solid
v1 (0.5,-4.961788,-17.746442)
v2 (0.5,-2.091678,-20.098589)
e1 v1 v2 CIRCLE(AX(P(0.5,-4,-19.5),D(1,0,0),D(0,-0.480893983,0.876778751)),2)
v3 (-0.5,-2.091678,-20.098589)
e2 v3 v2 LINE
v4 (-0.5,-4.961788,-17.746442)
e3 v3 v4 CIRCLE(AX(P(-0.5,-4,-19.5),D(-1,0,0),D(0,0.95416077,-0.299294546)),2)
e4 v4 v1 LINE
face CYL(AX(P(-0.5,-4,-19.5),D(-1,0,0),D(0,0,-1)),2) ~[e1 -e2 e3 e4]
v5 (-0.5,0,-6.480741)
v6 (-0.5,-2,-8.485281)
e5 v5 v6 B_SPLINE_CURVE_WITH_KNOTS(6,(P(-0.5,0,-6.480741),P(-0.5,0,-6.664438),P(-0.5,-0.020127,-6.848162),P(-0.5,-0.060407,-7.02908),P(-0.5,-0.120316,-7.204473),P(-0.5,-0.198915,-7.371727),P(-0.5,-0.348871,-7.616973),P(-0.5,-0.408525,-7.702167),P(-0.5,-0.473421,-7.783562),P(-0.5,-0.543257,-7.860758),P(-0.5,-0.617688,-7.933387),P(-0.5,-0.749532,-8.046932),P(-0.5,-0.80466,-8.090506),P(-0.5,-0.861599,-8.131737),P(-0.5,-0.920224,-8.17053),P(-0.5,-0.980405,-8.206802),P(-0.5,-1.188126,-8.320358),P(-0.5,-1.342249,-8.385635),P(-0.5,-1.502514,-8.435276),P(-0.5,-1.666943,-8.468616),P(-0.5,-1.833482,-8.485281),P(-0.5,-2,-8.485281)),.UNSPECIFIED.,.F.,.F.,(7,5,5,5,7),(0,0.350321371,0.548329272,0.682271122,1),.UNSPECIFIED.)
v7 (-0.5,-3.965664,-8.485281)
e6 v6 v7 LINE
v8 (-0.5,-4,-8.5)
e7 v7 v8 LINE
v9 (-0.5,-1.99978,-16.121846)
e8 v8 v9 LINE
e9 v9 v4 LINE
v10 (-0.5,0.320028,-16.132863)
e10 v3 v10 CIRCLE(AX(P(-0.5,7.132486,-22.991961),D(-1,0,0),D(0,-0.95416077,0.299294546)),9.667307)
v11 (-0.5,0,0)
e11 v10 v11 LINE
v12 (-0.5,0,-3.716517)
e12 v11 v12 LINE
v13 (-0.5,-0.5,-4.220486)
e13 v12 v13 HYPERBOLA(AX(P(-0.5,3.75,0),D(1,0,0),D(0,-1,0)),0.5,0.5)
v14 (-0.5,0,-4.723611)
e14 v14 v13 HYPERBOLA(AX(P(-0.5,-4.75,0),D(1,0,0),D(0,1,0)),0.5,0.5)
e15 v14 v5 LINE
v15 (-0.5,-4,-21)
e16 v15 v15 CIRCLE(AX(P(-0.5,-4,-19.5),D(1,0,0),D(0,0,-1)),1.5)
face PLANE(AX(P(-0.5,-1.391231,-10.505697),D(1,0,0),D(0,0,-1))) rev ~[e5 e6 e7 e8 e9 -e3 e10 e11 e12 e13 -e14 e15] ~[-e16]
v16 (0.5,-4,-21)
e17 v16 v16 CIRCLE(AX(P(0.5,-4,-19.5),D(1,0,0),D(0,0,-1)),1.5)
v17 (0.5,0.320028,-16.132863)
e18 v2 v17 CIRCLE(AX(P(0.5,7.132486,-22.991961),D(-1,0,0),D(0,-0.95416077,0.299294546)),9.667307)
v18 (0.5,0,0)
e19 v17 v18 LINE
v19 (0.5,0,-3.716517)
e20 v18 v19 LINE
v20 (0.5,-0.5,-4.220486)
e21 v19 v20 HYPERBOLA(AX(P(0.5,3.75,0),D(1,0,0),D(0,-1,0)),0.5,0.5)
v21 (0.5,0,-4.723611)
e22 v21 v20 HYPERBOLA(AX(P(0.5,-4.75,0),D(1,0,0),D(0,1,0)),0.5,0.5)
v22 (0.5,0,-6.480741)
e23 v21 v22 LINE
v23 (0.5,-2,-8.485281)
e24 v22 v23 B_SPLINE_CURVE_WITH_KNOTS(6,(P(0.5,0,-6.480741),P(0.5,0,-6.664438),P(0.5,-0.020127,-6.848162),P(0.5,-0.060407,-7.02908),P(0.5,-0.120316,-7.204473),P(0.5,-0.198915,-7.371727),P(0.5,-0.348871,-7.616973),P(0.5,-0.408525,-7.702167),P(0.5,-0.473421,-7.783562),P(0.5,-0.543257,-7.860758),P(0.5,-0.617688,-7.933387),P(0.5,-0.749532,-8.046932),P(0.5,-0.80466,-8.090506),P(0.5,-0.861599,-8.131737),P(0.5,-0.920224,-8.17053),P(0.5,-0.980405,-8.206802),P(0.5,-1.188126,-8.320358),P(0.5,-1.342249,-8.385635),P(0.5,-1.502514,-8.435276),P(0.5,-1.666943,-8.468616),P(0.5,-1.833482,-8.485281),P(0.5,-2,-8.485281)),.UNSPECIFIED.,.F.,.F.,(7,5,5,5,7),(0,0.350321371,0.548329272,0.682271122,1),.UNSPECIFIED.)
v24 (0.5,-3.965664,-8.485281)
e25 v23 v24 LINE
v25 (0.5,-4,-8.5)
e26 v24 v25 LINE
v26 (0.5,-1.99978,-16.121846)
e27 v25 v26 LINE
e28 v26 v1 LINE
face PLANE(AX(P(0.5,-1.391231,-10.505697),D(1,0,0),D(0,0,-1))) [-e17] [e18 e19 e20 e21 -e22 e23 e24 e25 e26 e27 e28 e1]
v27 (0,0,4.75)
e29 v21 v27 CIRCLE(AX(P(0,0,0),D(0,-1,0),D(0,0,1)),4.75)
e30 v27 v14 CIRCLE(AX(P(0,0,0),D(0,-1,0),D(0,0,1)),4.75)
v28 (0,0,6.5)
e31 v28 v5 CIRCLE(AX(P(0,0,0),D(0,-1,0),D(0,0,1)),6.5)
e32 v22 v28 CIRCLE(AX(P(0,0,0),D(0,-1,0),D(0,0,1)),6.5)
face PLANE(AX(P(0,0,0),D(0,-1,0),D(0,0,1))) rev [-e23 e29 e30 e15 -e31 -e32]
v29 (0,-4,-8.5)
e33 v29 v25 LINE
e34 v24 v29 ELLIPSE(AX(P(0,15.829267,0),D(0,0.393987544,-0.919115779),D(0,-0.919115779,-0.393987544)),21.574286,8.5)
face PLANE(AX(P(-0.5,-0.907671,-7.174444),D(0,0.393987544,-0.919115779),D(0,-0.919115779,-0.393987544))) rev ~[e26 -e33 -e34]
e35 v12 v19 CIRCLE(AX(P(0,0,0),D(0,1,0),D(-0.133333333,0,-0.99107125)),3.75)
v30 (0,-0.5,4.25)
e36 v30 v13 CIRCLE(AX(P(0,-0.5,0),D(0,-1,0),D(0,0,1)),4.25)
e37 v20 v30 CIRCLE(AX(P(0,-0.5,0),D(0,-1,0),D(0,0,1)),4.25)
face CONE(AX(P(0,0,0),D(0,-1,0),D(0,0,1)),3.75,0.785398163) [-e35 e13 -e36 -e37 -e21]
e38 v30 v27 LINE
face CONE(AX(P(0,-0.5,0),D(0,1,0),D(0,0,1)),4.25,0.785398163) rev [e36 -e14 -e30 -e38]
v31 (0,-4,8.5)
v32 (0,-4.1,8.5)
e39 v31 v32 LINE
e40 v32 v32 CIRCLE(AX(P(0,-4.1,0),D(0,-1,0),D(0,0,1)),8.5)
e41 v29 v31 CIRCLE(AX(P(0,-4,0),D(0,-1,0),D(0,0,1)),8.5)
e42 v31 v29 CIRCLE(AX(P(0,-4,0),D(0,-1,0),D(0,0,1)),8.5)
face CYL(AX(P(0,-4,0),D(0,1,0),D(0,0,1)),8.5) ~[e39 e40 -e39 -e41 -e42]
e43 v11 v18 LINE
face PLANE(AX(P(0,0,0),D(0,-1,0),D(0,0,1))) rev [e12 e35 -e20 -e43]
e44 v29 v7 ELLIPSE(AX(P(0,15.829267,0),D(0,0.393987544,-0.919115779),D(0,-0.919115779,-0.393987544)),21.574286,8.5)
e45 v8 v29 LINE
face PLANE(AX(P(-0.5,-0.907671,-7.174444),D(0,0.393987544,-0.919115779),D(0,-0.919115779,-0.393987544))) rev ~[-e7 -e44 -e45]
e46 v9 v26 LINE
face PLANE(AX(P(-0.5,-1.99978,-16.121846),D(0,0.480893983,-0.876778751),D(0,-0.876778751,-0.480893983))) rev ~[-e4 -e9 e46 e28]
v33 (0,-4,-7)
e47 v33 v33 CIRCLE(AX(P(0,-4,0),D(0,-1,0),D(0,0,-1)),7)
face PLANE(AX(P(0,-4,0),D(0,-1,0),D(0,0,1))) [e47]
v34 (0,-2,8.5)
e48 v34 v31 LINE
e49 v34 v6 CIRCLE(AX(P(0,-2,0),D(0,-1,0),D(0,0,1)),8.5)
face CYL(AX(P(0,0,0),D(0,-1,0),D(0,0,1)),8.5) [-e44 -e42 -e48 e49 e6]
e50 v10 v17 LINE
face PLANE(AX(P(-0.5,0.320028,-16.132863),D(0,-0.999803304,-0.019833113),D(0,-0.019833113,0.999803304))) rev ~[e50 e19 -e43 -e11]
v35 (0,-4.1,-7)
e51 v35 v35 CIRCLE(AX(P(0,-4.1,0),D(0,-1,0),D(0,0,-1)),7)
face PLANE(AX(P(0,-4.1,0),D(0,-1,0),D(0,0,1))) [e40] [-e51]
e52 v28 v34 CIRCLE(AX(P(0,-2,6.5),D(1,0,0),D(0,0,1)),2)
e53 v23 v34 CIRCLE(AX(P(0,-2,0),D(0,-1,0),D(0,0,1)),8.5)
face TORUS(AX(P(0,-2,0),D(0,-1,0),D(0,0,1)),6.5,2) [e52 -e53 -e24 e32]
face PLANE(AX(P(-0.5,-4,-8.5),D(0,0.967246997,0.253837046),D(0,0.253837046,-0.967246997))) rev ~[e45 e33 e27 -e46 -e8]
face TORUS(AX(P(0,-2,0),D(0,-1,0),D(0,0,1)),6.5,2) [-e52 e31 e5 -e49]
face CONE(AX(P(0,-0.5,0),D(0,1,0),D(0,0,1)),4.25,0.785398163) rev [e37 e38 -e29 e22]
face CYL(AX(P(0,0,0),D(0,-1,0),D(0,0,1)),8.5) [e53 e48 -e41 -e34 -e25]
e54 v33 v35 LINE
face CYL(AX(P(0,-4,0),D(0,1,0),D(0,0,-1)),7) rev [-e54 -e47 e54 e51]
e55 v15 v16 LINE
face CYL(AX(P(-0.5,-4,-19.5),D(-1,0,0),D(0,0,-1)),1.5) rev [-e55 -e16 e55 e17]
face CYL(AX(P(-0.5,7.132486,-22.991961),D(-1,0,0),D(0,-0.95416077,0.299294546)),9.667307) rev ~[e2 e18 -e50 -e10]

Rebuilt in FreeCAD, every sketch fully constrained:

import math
import FreeCAD as App
import Part
import Sketcher

V = App.Vector
Q = App.Units.Quantity


def edges_at(feature, points):
    """Names of the edges that pass closest to the given points."""
    edges = feature.Shape.Edges
    near = lambda p: min(range(len(edges)), key=lambda i: edges[i].distToShape(Part.Vertex(*p))[0])
    return sorted({f"Edge{near(p) + 1}" for p in points})

doc = App.newDocument("Part")
body = doc.addObject("PartDesign::Body", "Body")

# Sketch on YZ plane
sketch1 = doc.addObject("Sketcher::SketchObject", "Sketch")
body.addObject(sketch1)
sketch1.AttachmentSupport = (doc.YZ_Plane, [""])
sketch1.MapMode = "FlatFace"
sketch1.addGeometry([
    Part.LineSegment(V(0, 0, 0), V(0, 3.75, 0)),  # 0
    Part.LineSegment(V(0, 3.75, 0), V(-0.5, 4.25, 0)),  # 1
    Part.LineSegment(V(-0.5, 4.25, 0), V(0, 4.75, 0)),  # 2
    Part.LineSegment(V(0, 4.75, 0), V(0, 8.5, 0)),  # 3
    Part.LineSegment(V(0, 8.5, 0), V(-4, 8.5, 0)),  # 4
    Part.LineSegment(V(-4, 8.5, 0), V(-4, 0, 0)),  # 5
    Part.LineSegment(V(-4, 0, 0), V(0, 0, 0)),  # 6
], False)
sketch1.addConstraint([
    Sketcher.Constraint("Coincident", 0, 2, 1, 1),
    Sketcher.Constraint("Coincident", 1, 2, 2, 1),
    Sketcher.Constraint("Coincident", 2, 2, 3, 1),
    Sketcher.Constraint("Coincident", 3, 2, 4, 1),
    Sketcher.Constraint("Coincident", 4, 2, 5, 1),
    Sketcher.Constraint("Coincident", 5, 2, 6, 1),
    Sketcher.Constraint("Coincident", 6, 2, 0, 1),
    Sketcher.Constraint("Vertical", 0),
    Sketcher.Constraint("Vertical", 3),
    Sketcher.Constraint("Horizontal", 4),
    Sketcher.Constraint("Vertical", 5),
    Sketcher.Constraint("Horizontal", 6),
    Sketcher.Constraint("Coincident", 6, 2, -1, 1),
    Sketcher.Constraint("PointOnObject", 2, 2, -2),
    Sketcher.Constraint("Perpendicular", 1, 2),
    Sketcher.Constraint("Equal", 0, 3),
    Sketcher.Constraint("Equal", 1, 2),
    Sketcher.Constraint("DistanceX", 4, 2, 4, 1, Q("4 mm")),
    Sketcher.Constraint("DistanceY", 5, 2, 5, 1, Q("8.5 mm")),
    Sketcher.Constraint("DistanceY", 0, 2, 2, 2, Q("1 mm")),
])
revolution = doc.addObject("PartDesign::Revolution", "Revolution")
body.addObject(revolution)
revolution.Profile = sketch1
revolution.ReferenceAxis = (sketch1, ["H_Axis"])
revolution.Angle = 360
doc.recompute()

fillet = doc.addObject("PartDesign::Fillet", "Fillet")
body.addObject(fillet)
fillet.Base = (revolution, edges_at(revolution, [(0, 0, -8.5)]))
fillet.Radius = 2
body2 = doc.addObject("PartDesign::Body", "Body001")

# Sketch on XZ plane
sketch2 = doc.addObject("Sketcher::SketchObject", "Sketch001")
body2.addObject(sketch2)
sketch2.AttachmentSupport = (doc.getObject("XZ_Plane001"), [""])
sketch2.MapMode = "FlatFace"
sketch2.AttachmentOffset = App.Placement(V(0, 0, 4), App.Rotation())
sketch2.addGeometry([
    Part.Circle(V(0, 0, 0), V(0, 0, 1), 8.5),
    Part.Circle(V(0, 0, 0), V(0, 0, 1), 7),
], False)
sketch2.addConstraint([
    Sketcher.Constraint("Coincident", 0, 3, -1, 1),
    Sketcher.Constraint("Coincident", 1, 3, -1, 1),
    Sketcher.Constraint("Diameter", 0, Q("17 mm")),
    Sketcher.Constraint("Diameter", 1, Q("14 mm")),
])
pad1 = doc.addObject("PartDesign::Pad", "Pad")
body2.addObject(pad1)
pad1.Profile = sketch2
pad1.Length = 0.1
doc.recompute()

boolean = doc.addObject("PartDesign::Boolean", "Boolean")
body.addObject(boolean)
boolean.Type = "Fuse"
boolean.addObjects([body2])

# Sketch on YZ plane
sketch3 = doc.addObject("Sketcher::SketchObject", "Sketch002")
body.addObject(sketch3)
sketch3.AttachmentSupport = (doc.YZ_Plane, [""])
sketch3.MapMode = "FlatFace"
sketch3.addGeometry([
    Part.LineSegment(V(0.320028, -16.132863, 0), V(0, 0, 0)),  # 0
    Part.LineSegment(V(0, 0, 0), V(-0.907671, 0, 0)),  # 1
    Part.LineSegment(V(-0.907671, 0, 0), V(-0.907671, -7.174444, 0)),  # 2
    Part.LineSegment(V(-0.907671, -7.174444, 0), V(-4, -8.5, 0)),  # 3
    Part.LineSegment(V(-4, -8.5, 0), V(-1.99978, -16.121846, 0)),  # 4
    Part.LineSegment(V(-1.99978, -16.121846, 0), V(-4.961788, -17.746442, 0)),  # 5
    Part.ArcOfCircle(Part.Circle(V(-4, -19.5, 0), V(0, 0, 1), 2), math.radians(118.743806), math.radians(342.584763)),  # 6
    Part.ArcOfCircle(Part.Circle(V(7.132486, -22.991961, 0), V(0, 0, 1), 9.667307), math.radians(134.80454), math.radians(162.584763)),  # 7
    Part.Circle(V(-4, -19.5, 0), V(0, 0, 1), 1.5),  # 8
], False)
sketch3.addConstraint([
    Sketcher.Constraint("Coincident", 0, 2, 1, 1),
    Sketcher.Constraint("Coincident", 1, 2, 2, 1),
    Sketcher.Constraint("Coincident", 2, 2, 3, 1),
    Sketcher.Constraint("Coincident", 3, 2, 4, 1),
    Sketcher.Constraint("Coincident", 4, 2, 5, 1),
    Sketcher.Constraint("Coincident", 5, 2, 6, 1),
    Sketcher.Constraint("Coincident", 6, 2, 7, 2),
    Sketcher.Constraint("Coincident", 7, 1, 0, 1),
    Sketcher.Constraint("Horizontal", 1),
    Sketcher.Constraint("Vertical", 2),
    Sketcher.Constraint("Coincident", 0, 2, -1, 1),
    Sketcher.Constraint("Coincident", 8, 3, 6, 3),
    Sketcher.Constraint("Diameter", 8, Q("3 mm")),
    Sketcher.Constraint("Radius", 6, Q("2 mm")),
    Sketcher.Constraint("DistanceX", 6, 3, -1, 1, Q("4 mm")),
    Sketcher.Constraint("DistanceX", 3, 2, -1, 1, Q("4 mm")),
    Sketcher.Constraint("DistanceY", 6, 3, 3, 2, Q("11 mm")),
    Sketcher.Constraint("DistanceY", 6, 3, -1, 1, Q("19.5 mm")),
    Sketcher.Constraint("Radius", 7, Q("9.667307 mm")),
    Sketcher.Constraint("DistanceY", 5, 2, 2, 2, Q("10.571998 mm")),
    Sketcher.Constraint("DistanceX", 1, 2, 1, 1, Q("0.907671 mm")),
    Sketcher.Constraint("DistanceY", 4, 2, 2, 2, Q("8.947402 mm")),
    Sketcher.Constraint("DistanceX", 6, 2, 4, 2, Q("0.091899 mm")),
    Sketcher.Constraint("Distance", 3, Q("3.364461 mm")),
    Sketcher.Constraint("DistanceY", 7, 3, -1, 1, Q("22.991961 mm")),
    Sketcher.Constraint("DistanceX", 4, 2, -1, 1, Q("1.99978 mm")),
    Sketcher.Constraint("DistanceY", 5, 2, 7, 1, Q("1.613579 mm")),
])
pad2 = doc.addObject("PartDesign::Pad", "Pad001")
body.addObject(pad2)
pad2.Profile = sketch3
pad2.Type = "TwoLengths"
pad2.Length = 0.5
pad2.Length2 = 0.5

doc.recompute()
